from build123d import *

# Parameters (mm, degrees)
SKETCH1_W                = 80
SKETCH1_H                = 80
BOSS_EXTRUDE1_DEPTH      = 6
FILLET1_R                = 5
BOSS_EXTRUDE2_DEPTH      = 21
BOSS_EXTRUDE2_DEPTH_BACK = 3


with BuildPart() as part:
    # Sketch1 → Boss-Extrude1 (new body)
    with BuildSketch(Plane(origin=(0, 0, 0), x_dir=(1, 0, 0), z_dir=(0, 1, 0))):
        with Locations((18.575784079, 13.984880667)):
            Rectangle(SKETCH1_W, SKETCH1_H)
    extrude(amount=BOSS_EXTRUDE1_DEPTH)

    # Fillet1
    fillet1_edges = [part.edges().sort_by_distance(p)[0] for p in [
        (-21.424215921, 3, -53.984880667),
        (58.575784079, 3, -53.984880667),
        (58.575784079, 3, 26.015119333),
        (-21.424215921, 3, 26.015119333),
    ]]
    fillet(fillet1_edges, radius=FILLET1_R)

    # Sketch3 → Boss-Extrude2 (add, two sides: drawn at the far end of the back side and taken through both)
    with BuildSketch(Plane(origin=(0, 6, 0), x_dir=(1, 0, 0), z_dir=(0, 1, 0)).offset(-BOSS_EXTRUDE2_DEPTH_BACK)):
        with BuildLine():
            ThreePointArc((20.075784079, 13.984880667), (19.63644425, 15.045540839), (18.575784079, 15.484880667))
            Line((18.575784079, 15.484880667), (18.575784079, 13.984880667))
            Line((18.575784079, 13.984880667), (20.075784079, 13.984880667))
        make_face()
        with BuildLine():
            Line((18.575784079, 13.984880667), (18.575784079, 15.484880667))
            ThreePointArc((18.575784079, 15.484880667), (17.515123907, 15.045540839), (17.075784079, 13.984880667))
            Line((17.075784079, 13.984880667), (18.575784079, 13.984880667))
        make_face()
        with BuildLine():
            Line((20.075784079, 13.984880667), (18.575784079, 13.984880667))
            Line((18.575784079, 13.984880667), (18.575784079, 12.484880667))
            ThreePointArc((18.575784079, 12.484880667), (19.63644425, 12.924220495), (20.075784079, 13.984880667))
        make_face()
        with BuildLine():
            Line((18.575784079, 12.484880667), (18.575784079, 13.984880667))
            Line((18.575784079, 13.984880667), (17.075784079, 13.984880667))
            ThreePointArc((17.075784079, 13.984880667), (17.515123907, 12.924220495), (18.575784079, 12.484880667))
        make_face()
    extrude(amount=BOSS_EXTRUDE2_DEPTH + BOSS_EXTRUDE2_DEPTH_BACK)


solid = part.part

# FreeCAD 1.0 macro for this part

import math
import FreeCAD as App
import Part
import Sketcher
from FreeCAD import Vector


def edges_at(feature, points):
    """Names of the edges that pass closest to the given points."""
    edges = feature.Shape.Edges
    near = lambda p: min(range(len(edges)), key=lambda i: edges[i].distToShape(Part.Vertex(*p))[0])
    return sorted({f"Edge{near(p) + 1}" for p in points})

doc = App.newDocument("Part")
body = doc.addObject("PartDesign::Body", "Body")

# Sketch on XZ plane
sketch1 = body.newObject("Sketcher::SketchObject", "Sketch")
sketch1.AttachmentSupport = (doc.getObject("XZ_Plane"), [""])
sketch1.MapMode = "FlatFace"
sketch1.addGeometry([
    Part.LineSegment(Vector(-21, -54, 0), Vector(-21, 26, 0)),
    Part.LineSegment(Vector(-21, 26, 0), Vector(59, 26, 0)),
    Part.LineSegment(Vector(59, 26, 0), Vector(59, -54, 0)),
    Part.LineSegment(Vector(59, -54, 0), Vector(-21, -54, 0)),
], False)
sketch1.addConstraint([
    Sketcher.Constraint("Coincident", 0, 2, 1, 1),
    Sketcher.Constraint("Coincident", 1, 2, 2, 1),
    Sketcher.Constraint("Coincident", 2, 2, 3, 1),
    Sketcher.Constraint("Coincident", 3, 2, 0, 1),
    Sketcher.Constraint("Vertical", 0),
    Sketcher.Constraint("Horizontal", 1),
    Sketcher.Constraint("Vertical", 2),
    Sketcher.Constraint("Horizontal", 3),
    Sketcher.Constraint("Equal", 3, 0),
    Sketcher.Constraint("DistanceX", 1, 1, 1, 2, 80.0),
    Sketcher.Constraint("DistanceY", -1, 1, 0, 2, 26.015119),
    Sketcher.Constraint("DistanceX", 0, 2, -1, 1, 21.424216),
])
pad1 = body.newObject("PartDesign::Pad", "Pad")
pad1.Profile = sketch1
pad1.Length = 6
pad1.Reversed = True
doc.recompute()

fillet = body.newObject("PartDesign::Fillet", "Fillet")
fillet.Base = (pad1, edges_at(pad1, [
    (-21.424, 3, -53.985),
    (58.576, 3, -53.985),
    (58.576, 3, 26.015),
    (-21.424, 3, 26.015),
]))
fillet.Radius = 5

# Sketch on XZ plane
sketch2 = body.newObject("Sketcher::SketchObject", "Sketch001")
sketch2.AttachmentSupport = (doc.getObject("XZ_Plane"), [""])
sketch2.MapMode = "FlatFace"
sketch2.AttachmentOffset = App.Placement(Vector(0, 0, -6), App.Rotation())
sketch2.addGeometry([
    Part.ArcOfCircle(Part.Circle(Vector(18.6, -14, 0), Vector(0, 0, 1), 1.5), math.radians(180), math.radians(270)),
    Part.ArcOfCircle(Part.Circle(Vector(18.6, -14, 0), Vector(0, 0, 1), 1.5), math.radians(90), math.radians(180)),
    Part.ArcOfCircle(Part.Circle(Vector(18.6, -14, 0), Vector(0, 0, 1), 1.5), math.radians(0), math.radians(90)),
    Part.ArcOfCircle(Part.Circle(Vector(18.6, -14, 0), Vector(0, 0, 1), 1.5), math.radians(-90), math.radians(0)),
], False)
sketch2.addConstraint([
    Sketcher.Constraint("Tangent", 0, 1, 1, 2),
    Sketcher.Constraint("Tangent", 1, 1, 2, 2),
    Sketcher.Constraint("Tangent", 2, 1, 3, 2),
    Sketcher.Constraint("Tangent", 3, 1, 0, 2),
    Sketcher.Constraint("Equal", 0, 1),
    Sketcher.Constraint("Horizontal", 3, 3, 0, 1),
    Sketcher.Constraint("Horizontal", 0, 1, 2, 1),
    Sketcher.Constraint("Vertical", 3, 3, 1, 1),
    Sketcher.Constraint("Vertical", 1, 1, 3, 1),
    Sketcher.Constraint("Radius", 0, 1.5),
    Sketcher.Constraint("DistanceY", 0, 3, -1, 1, 13.984881),
    Sketcher.Constraint("DistanceX", -1, 1, 0, 3, 18.575784),
])
pad2 = body.newObject("PartDesign::Pad", "Pad001")
pad2.Profile = sketch2
pad2.Type = "TwoLengths"
pad2.Length = 21
pad2.Length2 = 3
pad2.Reversed = True

doc.recompute()
